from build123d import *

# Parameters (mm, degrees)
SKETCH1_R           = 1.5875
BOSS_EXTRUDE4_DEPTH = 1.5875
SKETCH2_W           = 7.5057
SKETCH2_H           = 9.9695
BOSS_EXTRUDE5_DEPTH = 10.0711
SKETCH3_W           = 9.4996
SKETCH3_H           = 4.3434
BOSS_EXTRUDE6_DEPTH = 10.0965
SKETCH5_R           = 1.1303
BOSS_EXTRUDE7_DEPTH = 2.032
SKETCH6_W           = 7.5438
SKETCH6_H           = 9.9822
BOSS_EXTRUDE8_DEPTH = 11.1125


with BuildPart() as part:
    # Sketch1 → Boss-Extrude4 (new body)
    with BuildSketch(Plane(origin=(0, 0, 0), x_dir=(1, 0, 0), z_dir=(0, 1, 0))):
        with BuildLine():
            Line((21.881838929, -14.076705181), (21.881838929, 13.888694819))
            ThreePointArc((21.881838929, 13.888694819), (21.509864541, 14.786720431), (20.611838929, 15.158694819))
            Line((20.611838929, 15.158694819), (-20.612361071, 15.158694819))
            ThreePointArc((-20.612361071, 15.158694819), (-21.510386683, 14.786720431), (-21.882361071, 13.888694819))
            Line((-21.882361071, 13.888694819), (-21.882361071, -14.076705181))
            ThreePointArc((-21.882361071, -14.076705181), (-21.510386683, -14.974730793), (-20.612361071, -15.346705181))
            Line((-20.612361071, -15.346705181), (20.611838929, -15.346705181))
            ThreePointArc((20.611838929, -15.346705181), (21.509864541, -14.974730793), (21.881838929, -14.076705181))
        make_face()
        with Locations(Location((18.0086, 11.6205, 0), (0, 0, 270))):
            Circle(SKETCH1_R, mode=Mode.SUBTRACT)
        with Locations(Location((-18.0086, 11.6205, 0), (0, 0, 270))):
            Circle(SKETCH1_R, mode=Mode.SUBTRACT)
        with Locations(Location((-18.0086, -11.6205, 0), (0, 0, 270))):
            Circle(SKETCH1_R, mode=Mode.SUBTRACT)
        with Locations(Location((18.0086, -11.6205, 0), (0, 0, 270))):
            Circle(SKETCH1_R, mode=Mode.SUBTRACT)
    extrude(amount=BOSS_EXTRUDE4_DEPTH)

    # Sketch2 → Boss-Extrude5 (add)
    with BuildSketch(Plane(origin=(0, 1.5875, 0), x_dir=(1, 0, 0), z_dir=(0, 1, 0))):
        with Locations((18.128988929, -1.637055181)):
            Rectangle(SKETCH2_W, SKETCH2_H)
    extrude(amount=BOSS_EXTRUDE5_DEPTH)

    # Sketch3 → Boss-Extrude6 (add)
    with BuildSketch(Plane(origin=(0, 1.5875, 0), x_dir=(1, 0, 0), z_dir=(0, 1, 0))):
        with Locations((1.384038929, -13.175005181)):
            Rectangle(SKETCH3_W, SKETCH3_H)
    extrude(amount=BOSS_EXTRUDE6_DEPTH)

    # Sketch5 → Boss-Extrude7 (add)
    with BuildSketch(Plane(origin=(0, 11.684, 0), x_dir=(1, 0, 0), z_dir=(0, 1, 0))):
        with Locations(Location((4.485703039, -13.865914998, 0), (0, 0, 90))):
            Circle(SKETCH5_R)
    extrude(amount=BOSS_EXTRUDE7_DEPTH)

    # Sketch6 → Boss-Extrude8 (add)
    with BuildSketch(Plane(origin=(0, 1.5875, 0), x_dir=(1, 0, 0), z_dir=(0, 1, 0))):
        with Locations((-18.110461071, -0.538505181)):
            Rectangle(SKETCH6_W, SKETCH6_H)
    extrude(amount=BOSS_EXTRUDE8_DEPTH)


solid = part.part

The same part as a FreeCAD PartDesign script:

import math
import FreeCAD as App
import Part
import Sketcher

V = App.Vector
Q = App.Units.Quantity


def add_polygon(sketch, points):
    """Adds a closed chain of lines whose ends are joined by coincident constraints."""
    first, n = sketch.GeometryCount, len(points)
    for a, b in zip(points, points[1:] + points[:1]):
        sketch.addGeometry(Part.LineSegment(App.Vector(*a, 0), App.Vector(*b, 0)), False)
    for i in range(n):
        sketch.addConstraint(Sketcher.Constraint("Coincident", first + i, 2, first + (i + 1) % n, 1))

doc = App.newDocument("Part")
body = doc.addObject("PartDesign::Body", "Body")

sketch1 = body.newObject("Sketcher::SketchObject", "Sketch")
sketch1.AttachmentSupport = (doc.getObject("XZ_Plane"), [""])
sketch1.MapMode = "FlatFace"
sketch1.addGeometry([
    Part.LineSegment(V(21.9, 14.1, 0), V(21.9, -13.9, 0)),
    Part.ArcOfCircle(Part.Circle(V(20.6, -13.9, 0), V(0, 0, 1), 1.3), math.radians(-90), math.radians(0)),
    Part.LineSegment(V(20.6, -15.2, 0), V(-20.6, -15.2, 0)),
    Part.ArcOfCircle(Part.Circle(V(-20.6, -13.9, 0), V(0, 0, 1), 1.3), math.radians(180), math.radians(270)),
    Part.LineSegment(V(-21.9, -13.9, 0), V(-21.9, 14.1, 0)),
    Part.ArcOfCircle(Part.Circle(V(-20.6, 14.1, 0), V(0, 0, 1), 1.3), math.radians(90), math.radians(180)),
    Part.LineSegment(V(-20.6, 15.3, 0), V(20.6, 15.3, 0)),
    Part.ArcOfCircle(Part.Circle(V(20.6, 14.1, 0), V(0, 0, 1), 1.3), math.radians(0), math.radians(90)),
    Part.Circle(V(-18, 11.6, 0), V(0, 0, 1), 1.6),
    Part.Circle(V(18, 11.6, 0), V(0, 0, 1), 1.6),
    Part.Circle(V(-18, -11.6, 0), V(0, 0, 1), 1.6),
    Part.Circle(V(18, -11.6, 0), V(0, 0, 1), 1.6),
], False)
sketch1.addConstraint([
    Sketcher.Constraint("Tangent", 0, 2, 1, 2),
    Sketcher.Constraint("Tangent", 1, 1, 2, 1),
    Sketcher.Constraint("Tangent", 2, 2, 3, 2),
    Sketcher.Constraint("Tangent", 3, 1, 4, 1),
    Sketcher.Constraint("Tangent", 4, 2, 5, 2),
    Sketcher.Constraint("Tangent", 5, 1, 6, 1),
    Sketcher.Constraint("Tangent", 6, 2, 7, 2),
    Sketcher.Constraint("Tangent", 7, 1, 0, 1),
    Sketcher.Constraint("Vertical", 0),
    Sketcher.Constraint("Horizontal", 2),
    Sketcher.Constraint("Vertical", 4),
    Sketcher.Constraint("Horizontal", 6),
    Sketcher.Constraint("Equal", 1, 3),
    Sketcher.Constraint("Equal", 3, 5),
    Sketcher.Constraint("Equal", 5, 7),
    Sketcher.Constraint("Equal", 8, 9),
    Sketcher.Constraint("Equal", 9, 10),
    Sketcher.Constraint("Equal", 10, 11),
    Sketcher.Constraint("Symmetric", 9, 3, 10, 3, -1, 1),
    Sketcher.Constraint("Symmetric", 8, 3, 11, 3, -1, 1),
    Sketcher.Constraint("Symmetric", 8, 3, 9, 3, -2),
    Sketcher.Constraint("Radius", 1, Q("0.05 in")),
    Sketcher.Constraint("Diameter", 8, Q("0.125 in")),
    Sketcher.Constraint("DistanceX", 2, 2, 2, 1, Q("1.623 in")),
    Sketcher.Constraint("DistanceY", 0, 2, 0, 1, Q("1.101 in")),
    Sketcher.Constraint("DistanceX", 8, 3, -1, 1, Q("0.709 in")),
    Sketcher.Constraint("DistanceY", 10, 3, 8, 3, Q("0.915 in")),
    Sketcher.Constraint("DistanceX", -1, 1, 1, 3, 20.611839),
    Sketcher.Constraint("DistanceY", 1, 3, -1, 1, 13.888695),
])
pad1 = body.newObject("PartDesign::Pad", "Pad")
pad1.Profile = sketch1
pad1.Length = Q("0.0625 in")
pad1.Reversed = True

sketch2 = body.newObject("Sketcher::SketchObject", "Sketch001")
sketch2.AttachmentSupport = (doc.getObject("XZ_Plane"), [""])
sketch2.MapMode = "FlatFace"
sketch2.AttachmentOffset = App.Placement(V(0, 0, -0.0625 * 25.4), App.Rotation())
add_polygon(sketch2, [(14, -3), (14, 7), (22, 7), (22, -3)])
sketch2.addConstraint([
    Sketcher.Constraint("Vertical", 0),
    Sketcher.Constraint("Horizontal", 1),
    Sketcher.Constraint("Vertical", 2),
    Sketcher.Constraint("Horizontal", 3),
    Sketcher.Constraint("DistanceX", 1, 1, 1, 2, Q("0.2955 in")),
    Sketcher.Constraint("DistanceY", 0, 1, 0, 2, Q("0.3925 in")),
    Sketcher.Constraint("DistanceX", -1, 1, 0, 2, 14.376139),
    Sketcher.Constraint("DistanceY", -1, 1, 0, 2, 6.621805),
])
pad2 = body.newObject("PartDesign::Pad", "Pad001")
pad2.Profile = sketch2
pad2.Length = Q("0.3965 in")
pad2.Reversed = True

sketch3 = body.newObject("Sketcher::SketchObject", "Sketch002")
sketch3.AttachmentSupport = (doc.getObject("XZ_Plane"), [""])
sketch3.MapMode = "FlatFace"
sketch3.AttachmentOffset = App.Placement(V(0, 0, -0.0625 * 25.4), App.Rotation())
add_polygon(sketch3, [(-3.4, 11), (-3.4, 15.3), (6.1, 15.3), (6.1, 11)])
sketch3.addConstraint([
    Sketcher.Constraint("Vertical", 0),
    Sketcher.Constraint("Horizontal", 1),
    Sketcher.Constraint("Vertical", 2),
    Sketcher.Constraint("Horizontal", 3),
    Sketcher.Constraint("DistanceX", 1, 1, 1, 2, Q("0.374 in")),
    Sketcher.Constraint("DistanceY", 0, 1, 0, 2, Q("0.171 in")),
    Sketcher.Constraint("DistanceX", 0, 2, -1, 1, 3.365761),
    Sketcher.Constraint("DistanceY", -1, 1, 0, 2, 15.346705),
])
pad3 = body.newObject("PartDesign::Pad", "Pad002")
pad3.Profile = sketch3
pad3.Length = Q("0.3975 in")
pad3.Reversed = True

sketch4 = body.newObject("Sketcher::SketchObject", "Sketch003")
sketch4.AttachmentSupport = (doc.getObject("XZ_Plane"), [""])
sketch4.MapMode = "FlatFace"
sketch4.AttachmentOffset = App.Placement(V(0, 0, -0.46 * 25.4), App.Rotation())
sketch4.addGeometry(Part.Circle(V(4.5, 13.9, 0), V(0, 0, 1), 1.1), False)
sketch4.addConstraint([
    Sketcher.Constraint("Diameter", 0, Q("0.089 in")),
    Sketcher.Constraint("DistanceX", -1, 1, 0, 3, 4.485703),
    Sketcher.Constraint("DistanceY", -1, 1, 0, 3, 13.865915),
])
pad4 = body.newObject("PartDesign::Pad", "Pad003")
pad4.Profile = sketch4
pad4.Length = Q("0.08 in")
pad4.Reversed = True

sketch5 = body.newObject("Sketcher::SketchObject", "Sketch004")
sketch5.AttachmentSupport = (doc.getObject("XZ_Plane"), [""])
sketch5.MapMode = "FlatFace"
sketch5.AttachmentOffset = App.Placement(V(0, 0, -0.0625 * 25.4), App.Rotation())
add_polygon(sketch5, [(-22, -4), (-22, 6), (-14, 6), (-14, -4)])
sketch5.addConstraint([
    Sketcher.Constraint("Vertical", 0),
    Sketcher.Constraint("Horizontal", 1),
    Sketcher.Constraint("Vertical", 2),
    Sketcher.Constraint("Horizontal", 3),
    Sketcher.Constraint("DistanceX", 1, 1, 1, 2, Q("0.297 in")),
    Sketcher.Constraint("DistanceY", 0, 1, 0, 2, Q("0.393 in")),
    Sketcher.Constraint("DistanceX", 0, 2, -1, 1, 21.882361),
    Sketcher.Constraint("DistanceY", -1, 1, 0, 2, 5.529605),
])
pad5 = body.newObject("PartDesign::Pad", "Pad004")
pad5.Profile = sketch5
pad5.Length = Q("0.4375 in")
pad5.Reversed = True

doc.recompute()
